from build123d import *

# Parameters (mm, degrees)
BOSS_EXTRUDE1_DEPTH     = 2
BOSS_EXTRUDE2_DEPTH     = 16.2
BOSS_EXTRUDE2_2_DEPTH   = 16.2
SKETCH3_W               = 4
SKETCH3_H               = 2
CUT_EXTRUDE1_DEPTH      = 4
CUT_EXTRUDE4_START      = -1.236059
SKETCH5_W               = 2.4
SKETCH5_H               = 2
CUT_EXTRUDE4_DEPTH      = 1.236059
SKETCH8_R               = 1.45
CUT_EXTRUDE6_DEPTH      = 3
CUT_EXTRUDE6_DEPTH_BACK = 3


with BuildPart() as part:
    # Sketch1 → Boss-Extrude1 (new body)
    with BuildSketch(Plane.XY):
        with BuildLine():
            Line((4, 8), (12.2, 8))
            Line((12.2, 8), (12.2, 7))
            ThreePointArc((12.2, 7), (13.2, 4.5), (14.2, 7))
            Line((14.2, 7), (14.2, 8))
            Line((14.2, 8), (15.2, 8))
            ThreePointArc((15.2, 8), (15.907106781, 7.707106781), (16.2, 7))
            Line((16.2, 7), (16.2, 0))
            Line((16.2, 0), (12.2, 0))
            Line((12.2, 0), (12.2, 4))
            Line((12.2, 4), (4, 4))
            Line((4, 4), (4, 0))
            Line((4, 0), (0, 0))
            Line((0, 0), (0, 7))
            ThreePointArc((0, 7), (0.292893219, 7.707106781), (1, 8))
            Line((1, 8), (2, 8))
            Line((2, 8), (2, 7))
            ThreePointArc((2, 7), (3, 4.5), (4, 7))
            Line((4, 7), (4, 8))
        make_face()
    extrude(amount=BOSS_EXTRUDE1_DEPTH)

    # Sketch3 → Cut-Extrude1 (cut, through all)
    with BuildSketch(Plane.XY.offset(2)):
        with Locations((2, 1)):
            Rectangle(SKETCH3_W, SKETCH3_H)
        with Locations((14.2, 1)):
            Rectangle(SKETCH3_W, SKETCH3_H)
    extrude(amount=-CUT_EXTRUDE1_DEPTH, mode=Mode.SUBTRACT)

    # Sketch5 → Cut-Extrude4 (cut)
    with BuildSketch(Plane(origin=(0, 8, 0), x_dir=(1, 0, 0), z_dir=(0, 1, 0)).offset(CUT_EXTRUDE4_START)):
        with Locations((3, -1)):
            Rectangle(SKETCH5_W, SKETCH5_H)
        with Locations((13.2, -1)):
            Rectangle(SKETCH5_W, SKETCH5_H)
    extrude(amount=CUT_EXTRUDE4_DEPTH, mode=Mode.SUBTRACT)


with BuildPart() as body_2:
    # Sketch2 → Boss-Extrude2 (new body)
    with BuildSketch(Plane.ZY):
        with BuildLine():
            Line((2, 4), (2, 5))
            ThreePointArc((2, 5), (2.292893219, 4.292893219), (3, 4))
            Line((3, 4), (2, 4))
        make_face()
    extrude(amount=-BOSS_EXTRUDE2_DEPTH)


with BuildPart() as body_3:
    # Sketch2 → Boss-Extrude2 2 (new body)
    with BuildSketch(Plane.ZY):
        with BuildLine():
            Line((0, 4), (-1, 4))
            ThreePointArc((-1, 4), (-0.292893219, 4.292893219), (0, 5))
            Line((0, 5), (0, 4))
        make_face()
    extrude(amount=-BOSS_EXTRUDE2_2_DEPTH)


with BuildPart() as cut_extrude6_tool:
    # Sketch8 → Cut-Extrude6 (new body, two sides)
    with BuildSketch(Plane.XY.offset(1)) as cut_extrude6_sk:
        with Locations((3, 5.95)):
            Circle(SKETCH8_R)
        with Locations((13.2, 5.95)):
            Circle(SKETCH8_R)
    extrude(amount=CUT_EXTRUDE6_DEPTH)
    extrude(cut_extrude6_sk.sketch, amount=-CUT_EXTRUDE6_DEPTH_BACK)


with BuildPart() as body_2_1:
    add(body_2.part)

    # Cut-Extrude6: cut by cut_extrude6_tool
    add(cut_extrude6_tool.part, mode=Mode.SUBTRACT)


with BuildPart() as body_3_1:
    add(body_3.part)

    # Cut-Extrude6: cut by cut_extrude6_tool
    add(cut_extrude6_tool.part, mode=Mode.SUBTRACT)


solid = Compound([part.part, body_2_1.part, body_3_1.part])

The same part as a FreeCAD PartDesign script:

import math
import FreeCAD as App
import Part
import Sketcher

doc = App.newDocument("Part")
body = doc.addObject("PartDesign::Body", "Body")

# Sketch on XY plane
sketch1 = doc.addObject("Sketcher::SketchObject", "Sketch")
body.addObject(sketch1)
sketch1.AttachmentSupport = (doc.XY_Plane, [""])
sketch1.MapMode = "FlatFace"
sketch1.addGeometry(Part.LineSegment(App.Vector(12.2, 8, 0), App.Vector(4, 8, 0)), False)
sketch1.addGeometry(Part.LineSegment(App.Vector(4, 8, 0), App.Vector(4, 7, 0)), False)
sketch1.addGeometry(Part.ArcOfCircle(Part.Circle(App.Vector(3, 6, 0), App.Vector(0, 0, 1), 1.4), math.radians(134), math.radians(406)), False)
sketch1.addGeometry(Part.LineSegment(App.Vector(2, 7, 0), App.Vector(2, 8, 0)), False)
sketch1.addGeometry(Part.LineSegment(App.Vector(2, 8, 0), App.Vector(1, 8, 0)), False)
sketch1.addGeometry(Part.ArcOfCircle(Part.Circle(App.Vector(1, 7, 0), App.Vector(0, 0, 1), 1), math.radians(90), math.radians(180)), False)
sketch1.addGeometry(Part.LineSegment(App.Vector(0, 7, 0), App.Vector(0, 0, 0)), False)
sketch1.addGeometry(Part.LineSegment(App.Vector(0, 0, 0), App.Vector(4, 0, 0)), False)
sketch1.addGeometry(Part.LineSegment(App.Vector(4, 0, 0), App.Vector(4, 4, 0)), False)
sketch1.addGeometry(Part.LineSegment(App.Vector(4, 4, 0), App.Vector(12.2, 4, 0)), False)
sketch1.addGeometry(Part.LineSegment(App.Vector(12.2, 4, 0), App.Vector(12.2, 0, 0)), False)
sketch1.addGeometry(Part.LineSegment(App.Vector(12.2, 0, 0), App.Vector(16.2, 0, 0)), False)
sketch1.addGeometry(Part.LineSegment(App.Vector(16.2, 0, 0), App.Vector(16.2, 7, 0)), False)
sketch1.addGeometry(Part.ArcOfCircle(Part.Circle(App.Vector(15.2, 7, 0), App.Vector(0, 0, 1), 1), math.radians(0), math.radians(90)), False)
sketch1.addGeometry(Part.LineSegment(App.Vector(15.2, 8, 0), App.Vector(14.2, 8, 0)), False)
sketch1.addGeometry(Part.LineSegment(App.Vector(14.2, 8, 0), App.Vector(14.2, 7, 0)), False)
sketch1.addGeometry(Part.ArcOfCircle(Part.Circle(App.Vector(13.2, 6, 0), App.Vector(0, 0, 1), 1.4), math.radians(134), math.radians(406)), False)
sketch1.addGeometry(Part.LineSegment(App.Vector(12.2, 7, 0), App.Vector(12.2, 8, 0)), False)
sketch1.addConstraint(Sketcher.Constraint("Coincident", 0, 2, 1, 1))
sketch1.addConstraint(Sketcher.Constraint("Coincident", 1, 2, 2, 2))
sketch1.addConstraint(Sketcher.Constraint("Coincident", 2, 1, 3, 1))
sketch1.addConstraint(Sketcher.Constraint("Coincident", 3, 2, 4, 1))
sketch1.addConstraint(Sketcher.Constraint("Tangent", 4, 2, 5, 1))
sketch1.addConstraint(Sketcher.Constraint("Tangent", 5, 2, 6, 1))
sketch1.addConstraint(Sketcher.Constraint("Coincident", 6, 2, 7, 1))
sketch1.addConstraint(Sketcher.Constraint("Coincident", 7, 2, 8, 1))
sketch1.addConstraint(Sketcher.Constraint("Coincident", 8, 2, 9, 1))
sketch1.addConstraint(Sketcher.Constraint("Coincident", 9, 2, 10, 1))
sketch1.addConstraint(Sketcher.Constraint("Coincident", 10, 2, 11, 1))
sketch1.addConstraint(Sketcher.Constraint("Coincident", 11, 2, 12, 1))
sketch1.addConstraint(Sketcher.Constraint("Tangent", 12, 2, 13, 1))
sketch1.addConstraint(Sketcher.Constraint("Tangent", 13, 2, 14, 1))
sketch1.addConstraint(Sketcher.Constraint("Coincident", 14, 2, 15, 1))
sketch1.addConstraint(Sketcher.Constraint("Coincident", 15, 2, 16, 2))
sketch1.addConstraint(Sketcher.Constraint("Coincident", 16, 1, 17, 1))
sketch1.addConstraint(Sketcher.Constraint("Coincident", 17, 2, 0, 1))
sketch1.addConstraint(Sketcher.Constraint("Horizontal", 0))
sketch1.addConstraint(Sketcher.Constraint("Vertical", 1))
sketch1.addConstraint(Sketcher.Constraint("Vertical", 3))
sketch1.addConstraint(Sketcher.Constraint("Horizontal", 4))
sketch1.addConstraint(Sketcher.Constraint("Vertical", 6))
sketch1.addConstraint(Sketcher.Constraint("Horizontal", 7))
sketch1.addConstraint(Sketcher.Constraint("Vertical", 8))
sketch1.addConstraint(Sketcher.Constraint("Horizontal", 9))
sketch1.addConstraint(Sketcher.Constraint("Vertical", 10))
sketch1.addConstraint(Sketcher.Constraint("Horizontal", 11))
sketch1.addConstraint(Sketcher.Constraint("Vertical", 12))
sketch1.addConstraint(Sketcher.Constraint("Horizontal", 14))
sketch1.addConstraint(Sketcher.Constraint("Vertical", 15))
sketch1.addConstraint(Sketcher.Constraint("Vertical", 17))
sketch1.addConstraint(Sketcher.Constraint("Coincident", 6, 2, -1, 1))
sketch1.addConstraint(Sketcher.Constraint("Equal", 5, 13))
sketch1.addConstraint(Sketcher.Constraint("Equal", 2, 16))
sketch1.addConstraint(Sketcher.Constraint("PointOnObject", 10, 2, -1))
sketch1.addConstraint(Sketcher.Constraint("Horizontal", 5, 3, 13, 3))
sketch1.addConstraint(Sketcher.Constraint("Horizontal", 2, 3, 16, 3))
sketch1.addConstraint(Sketcher.Constraint("Horizontal", 13, 3, 1, 2))
sketch1.addConstraint(Sketcher.Constraint("Horizontal", 1, 2, 2, 1))
sketch1.addConstraint(Sketcher.Constraint("Horizontal", 0, 2, 3, 2))
sketch1.addConstraint(Sketcher.Constraint("Horizontal", 12, 2, 15, 2))
sketch1.addConstraint(Sketcher.Constraint("Horizontal", 15, 2, 16, 1))
sketch1.addConstraint(Sketcher.Constraint("Vertical", 1, 2, 7, 2))
sketch1.addConstraint(Sketcher.Constraint("Vertical", 10, 2, 16, 1))
sketch1.addConstraint(Sketcher.Constraint("Equal", 7, 11))
sketch1.addConstraint(Sketcher.Constraint("Equal", 14, 1))
sketch1.addConstraint(Sketcher.Constraint("Equal", 11, 8))
sketch1.addConstraint(Sketcher.Constraint("Radius", 5, 1.0))
sketch1.addConstraint(Sketcher.Constraint("DistanceX", 7, 1, 7, 2, 4.0))
sketch1.addConstraint(Sketcher.Constraint("DistanceY", 6, 2, 6, 1, 7.0))
sketch1.addConstraint(Sketcher.Constraint("Radius", 2, 1.45))
sketch1.addConstraint(Sketcher.Constraint("DistanceX", 0, 2, 0, 1, 8.2))
pad1 = doc.addObject("PartDesign::Pad", "Pad")
body.addObject(pad1)
pad1.Profile = sketch1
pad1.Length = 2

# Sketch on XY plane
sketch2 = doc.addObject("Sketcher::SketchObject", "Sketch001")
body.addObject(sketch2)
sketch2.AttachmentSupport = (doc.XY_Plane, [""])
sketch2.MapMode = "FlatFace"
sketch2.AttachmentOffset = App.Placement(App.Vector(0, 0, 2), App.Rotation())
sketch2.addGeometry(Part.LineSegment(App.Vector(0, 2, 0), App.Vector(0, 0, 0)), False)
sketch2.addGeometry(Part.LineSegment(App.Vector(0, 0, 0), App.Vector(4, 0, 0)), False)
sketch2.addGeometry(Part.LineSegment(App.Vector(4, 0, 0), App.Vector(4, 2, 0)), False)
sketch2.addGeometry(Part.LineSegment(App.Vector(4, 2, 0), App.Vector(0, 2, 0)), False)
sketch2.addGeometry(Part.LineSegment(App.Vector(12.2, 2, 0), App.Vector(12.2, 0, 0)), False)
sketch2.addGeometry(Part.LineSegment(App.Vector(12.2, 0, 0), App.Vector(16.2, 0, 0)), False)
sketch2.addGeometry(Part.LineSegment(App.Vector(16.2, 0, 0), App.Vector(16.2, 2, 0)), False)
sketch2.addGeometry(Part.LineSegment(App.Vector(16.2, 2, 0), App.Vector(12.2, 2, 0)), False)
sketch2.addConstraint(Sketcher.Constraint("Coincident", 0, 2, 1, 1))
sketch2.addConstraint(Sketcher.Constraint("Coincident", 1, 2, 2, 1))
sketch2.addConstraint(Sketcher.Constraint("Coincident", 2, 2, 3, 1))
sketch2.addConstraint(Sketcher.Constraint("Coincident", 3, 2, 0, 1))
sketch2.addConstraint(Sketcher.Constraint("Coincident", 4, 2, 5, 1))
sketch2.addConstraint(Sketcher.Constraint("Coincident", 5, 2, 6, 1))
sketch2.addConstraint(Sketcher.Constraint("Coincident", 6, 2, 7, 1))
sketch2.addConstraint(Sketcher.Constraint("Coincident", 7, 2, 4, 1))
sketch2.addConstraint(Sketcher.Constraint("Vertical", 0))
sketch2.addConstraint(Sketcher.Constraint("Horizontal", 1))
sketch2.addConstraint(Sketcher.Constraint("Vertical", 2))
sketch2.addConstraint(Sketcher.Constraint("Horizontal", 3))
sketch2.addConstraint(Sketcher.Constraint("Vertical", 4))
sketch2.addConstraint(Sketcher.Constraint("Horizontal", 5))
sketch2.addConstraint(Sketcher.Constraint("Vertical", 6))
sketch2.addConstraint(Sketcher.Constraint("Horizontal", 7))
sketch2.addConstraint(Sketcher.Constraint("Coincident", 0, 2, -1, 1))
sketch2.addConstraint(Sketcher.Constraint("PointOnObject", 4, 2, -1))
sketch2.addConstraint(Sketcher.Constraint("Horizontal", 3, 2, 6, 2))
sketch2.addConstraint(Sketcher.Constraint("Equal", 3, 5))
sketch2.addConstraint(Sketcher.Constraint("DistanceX", 1, 1, 1, 2, 4.0))
sketch2.addConstraint(Sketcher.Constraint("DistanceY", 0, 2, 0, 1, 2.0))
sketch2.addConstraint(Sketcher.Constraint("DistanceX", -1, 1, 4, 2, 12.2))
pocket1 = doc.addObject("PartDesign::Pocket", "Pocket")
body.addObject(pocket1)
pocket1.Profile = sketch2
pocket1.Type = "ThroughAll"

# Sketch on XZ plane
sketch3 = doc.addObject("Sketcher::SketchObject", "Sketch002")
body.addObject(sketch3)
sketch3.AttachmentSupport = (doc.XZ_Plane, [""])
sketch3.MapMode = "FlatFace"
sketch3.AttachmentOffset = App.Placement(App.Vector(0, 0, -6.763941), App.Rotation())
sketch3.addGeometry(Part.LineSegment(App.Vector(1.8, 0, 0), App.Vector(1.8, 2, 0)), False)
sketch3.addGeometry(Part.LineSegment(App.Vector(1.8, 2, 0), App.Vector(4.2, 2, 0)), False)
sketch3.addGeometry(Part.LineSegment(App.Vector(4.2, 2, 0), App.Vector(4.2, 0, 0)), False)
sketch3.addGeometry(Part.LineSegment(App.Vector(4.2, 0, 0), App.Vector(1.8, 0, 0)), False)
sketch3.addGeometry(Part.LineSegment(App.Vector(12, 0, 0), App.Vector(12, 2, 0)), False)
sketch3.addGeometry(Part.LineSegment(App.Vector(12, 2, 0), App.Vector(14.4, 2, 0)), False)
sketch3.addGeometry(Part.LineSegment(App.Vector(14.4, 2, 0), App.Vector(14.4, 0, 0)), False)
sketch3.addGeometry(Part.LineSegment(App.Vector(14.4, 0, 0), App.Vector(12, 0, 0)), False)
sketch3.addConstraint(Sketcher.Constraint("Coincident", 0, 2, 1, 1))
sketch3.addConstraint(Sketcher.Constraint("Coincident", 1, 2, 2, 1))
sketch3.addConstraint(Sketcher.Constraint("Coincident", 2, 2, 3, 1))
sketch3.addConstraint(Sketcher.Constraint("Coincident", 3, 2, 0, 1))
sketch3.addConstraint(Sketcher.Constraint("Coincident", 4, 2, 5, 1))
sketch3.addConstraint(Sketcher.Constraint("Coincident", 5, 2, 6, 1))
sketch3.addConstraint(Sketcher.Constraint("Coincident", 6, 2, 7, 1))
sketch3.addConstraint(Sketcher.Constraint("Coincident", 7, 2, 4, 1))
sketch3.addConstraint(Sketcher.Constraint("Vertical", 0))
sketch3.addConstraint(Sketcher.Constraint("Horizontal", 1))
sketch3.addConstraint(Sketcher.Constraint("Vertical", 2))
sketch3.addConstraint(Sketcher.Constraint("Horizontal", 3))
sketch3.addConstraint(Sketcher.Constraint("Vertical", 4))
sketch3.addConstraint(Sketcher.Constraint("Horizontal", 5))
sketch3.addConstraint(Sketcher.Constraint("Vertical", 6))
sketch3.addConstraint(Sketcher.Constraint("Horizontal", 7))
sketch3.addConstraint(Sketcher.Constraint("PointOnObject", 2, 2, -1))
sketch3.addConstraint(Sketcher.Constraint("PointOnObject", 6, 2, -1))
sketch3.addConstraint(Sketcher.Constraint("Horizontal", 1, 2, 4, 2))
sketch3.addConstraint(Sketcher.Constraint("Equal", 3, 5))
sketch3.addConstraint(Sketcher.Constraint("DistanceY", 0, 1, 0, 2, 2.0))
sketch3.addConstraint(Sketcher.Constraint("DistanceX", 1, 1, 1, 2, 2.4))
sketch3.addConstraint(Sketcher.Constraint("DistanceX", -1, 1, 4, 2, 12.0))
sketch3.addConstraint(Sketcher.Constraint("DistanceX", -1, 1, 0, 2, 1.8))
pocket2 = doc.addObject("PartDesign::Pocket", "Pocket001")
body.addObject(pocket2)
pocket2.Profile = sketch3
pocket2.Length = 1.236059
body2 = doc.addObject("PartDesign::Body", "Body001")

# Sketch on YZ plane
sketch4 = doc.addObject("Sketcher::SketchObject", "Sketch003")
body2.addObject(sketch4)
sketch4.AttachmentSupport = (doc.getObject("YZ_Plane001"), [""])
sketch4.MapMode = "FlatFace"
sketch4.addGeometry(Part.LineSegment(App.Vector(5, 2, 0), App.Vector(4, 2, 0)), False)
sketch4.addGeometry(Part.LineSegment(App.Vector(4, 2, 0), App.Vector(4, 3, 0)), False)
sketch4.addGeometry(Part.ArcOfCircle(Part.Circle(App.Vector(5, 3, 0), App.Vector(0, 0, 1), 1), math.radians(-180), math.radians(-90)), False)
sketch4.addConstraint(Sketcher.Constraint("Coincident", 0, 2, 1, 1))
sketch4.addConstraint(Sketcher.Constraint("Tangent", 1, 2, 2, 1))
sketch4.addConstraint(Sketcher.Constraint("Tangent", 2, 2, 0, 1))
sketch4.addConstraint(Sketcher.Constraint("Horizontal", 0))
sketch4.addConstraint(Sketcher.Constraint("Vertical", 1))
sketch4.addConstraint(Sketcher.Constraint("Radius", 2, 1.0))
sketch4.addConstraint(Sketcher.Constraint("DistanceX", -1, 1, 2, 3, 5.0))
sketch4.addConstraint(Sketcher.Constraint("DistanceY", -1, 1, 2, 3, 3.0))
pad2 = doc.addObject("PartDesign::Pad", "Pad001")
body2.addObject(pad2)
pad2.Profile = sketch4
pad2.Length = 16.2
body3 = doc.addObject("PartDesign::Body", "Body002")

# Sketch on YZ plane
sketch5 = doc.addObject("Sketcher::SketchObject", "Sketch004")
body3.addObject(sketch5)
sketch5.AttachmentSupport = (doc.getObject("YZ_Plane002"), [""])
sketch5.MapMode = "FlatFace"
sketch5.addGeometry(Part.LineSegment(App.Vector(4, -1, 0), App.Vector(4, 0, 0)), False)
sketch5.addGeometry(Part.LineSegment(App.Vector(4, 0, 0), App.Vector(5, 0, 0)), False)
sketch5.addGeometry(Part.ArcOfCircle(Part.Circle(App.Vector(5, -1, 0), App.Vector(0, 0, 1), 1), math.radians(90), math.radians(180)), False)
sketch5.addConstraint(Sketcher.Constraint("Coincident", 0, 2, 1, 1))
sketch5.addConstraint(Sketcher.Constraint("Tangent", 1, 2, 2, 1))
sketch5.addConstraint(Sketcher.Constraint("Tangent", 2, 2, 0, 1))
sketch5.addConstraint(Sketcher.Constraint("Vertical", 0))
sketch5.addConstraint(Sketcher.Constraint("Horizontal", 1))
sketch5.addConstraint(Sketcher.Constraint("PointOnObject", 0, 2, -1))
sketch5.addConstraint(Sketcher.Constraint("Radius", 2, 1.0))
sketch5.addConstraint(Sketcher.Constraint("DistanceX", -1, 1, 2, 3, 5.0))
pad3 = doc.addObject("PartDesign::Pad", "Pad002")
body3.addObject(pad3)
pad3.Profile = sketch5
pad3.Length = 16.2
body4 = doc.addObject("PartDesign::Body", "Body003")
body4.AllowCompound = True

# Sketch on XY plane
sketch6 = doc.addObject("Sketcher::SketchObject", "Sketch005")
body4.addObject(sketch6)
sketch6.AttachmentSupport = (doc.getObject("XY_Plane003"), [""])
sketch6.MapMode = "FlatFace"
sketch6.AttachmentOffset = App.Placement(App.Vector(0, 0, 1), App.Rotation())
sketch6.addGeometry(Part.Circle(App.Vector(3, 6, 0), App.Vector(0, 0, 1), 1.4), False)
sketch6.addGeometry(Part.Circle(App.Vector(13.2, 6, 0), App.Vector(0, 0, 1), 1.4), False)
sketch6.addConstraint(Sketcher.Constraint("Equal", 0, 1))
sketch6.addConstraint(Sketcher.Constraint("Horizontal", 0, 3, 1, 3))
sketch6.addConstraint(Sketcher.Constraint("Diameter", 0, 2.9))
sketch6.addConstraint(Sketcher.Constraint("DistanceX", -1, 1, 0, 3, 3.0))
sketch6.addConstraint(Sketcher.Constraint("DistanceX", -1, 1, 1, 3, 13.2))
sketch6.addConstraint(Sketcher.Constraint("DistanceY", -1, 1, 0, 3, 5.95))
pad4 = doc.addObject("PartDesign::Pad", "Pad003")
body4.addObject(pad4)
pad4.Profile = sketch6
pad4.Type = "TwoLengths"
pad4.Length = 3
pad4.Length2 = 3
doc.recompute()

body5 = doc.addObject("PartDesign::Body", "Body004")
body5.BaseFeature = body4
boolean = doc.addObject("PartDesign::Boolean", "Boolean")
body2.addObject(boolean)
boolean.Type = "Cut"
boolean.addObjects([body5])
doc.recompute()

boolean2 = doc.addObject("PartDesign::Boolean", "Boolean001")
body3.addObject(boolean2)
boolean2.Type = "Cut"
boolean2.addObjects([body4])

doc.recompute()
